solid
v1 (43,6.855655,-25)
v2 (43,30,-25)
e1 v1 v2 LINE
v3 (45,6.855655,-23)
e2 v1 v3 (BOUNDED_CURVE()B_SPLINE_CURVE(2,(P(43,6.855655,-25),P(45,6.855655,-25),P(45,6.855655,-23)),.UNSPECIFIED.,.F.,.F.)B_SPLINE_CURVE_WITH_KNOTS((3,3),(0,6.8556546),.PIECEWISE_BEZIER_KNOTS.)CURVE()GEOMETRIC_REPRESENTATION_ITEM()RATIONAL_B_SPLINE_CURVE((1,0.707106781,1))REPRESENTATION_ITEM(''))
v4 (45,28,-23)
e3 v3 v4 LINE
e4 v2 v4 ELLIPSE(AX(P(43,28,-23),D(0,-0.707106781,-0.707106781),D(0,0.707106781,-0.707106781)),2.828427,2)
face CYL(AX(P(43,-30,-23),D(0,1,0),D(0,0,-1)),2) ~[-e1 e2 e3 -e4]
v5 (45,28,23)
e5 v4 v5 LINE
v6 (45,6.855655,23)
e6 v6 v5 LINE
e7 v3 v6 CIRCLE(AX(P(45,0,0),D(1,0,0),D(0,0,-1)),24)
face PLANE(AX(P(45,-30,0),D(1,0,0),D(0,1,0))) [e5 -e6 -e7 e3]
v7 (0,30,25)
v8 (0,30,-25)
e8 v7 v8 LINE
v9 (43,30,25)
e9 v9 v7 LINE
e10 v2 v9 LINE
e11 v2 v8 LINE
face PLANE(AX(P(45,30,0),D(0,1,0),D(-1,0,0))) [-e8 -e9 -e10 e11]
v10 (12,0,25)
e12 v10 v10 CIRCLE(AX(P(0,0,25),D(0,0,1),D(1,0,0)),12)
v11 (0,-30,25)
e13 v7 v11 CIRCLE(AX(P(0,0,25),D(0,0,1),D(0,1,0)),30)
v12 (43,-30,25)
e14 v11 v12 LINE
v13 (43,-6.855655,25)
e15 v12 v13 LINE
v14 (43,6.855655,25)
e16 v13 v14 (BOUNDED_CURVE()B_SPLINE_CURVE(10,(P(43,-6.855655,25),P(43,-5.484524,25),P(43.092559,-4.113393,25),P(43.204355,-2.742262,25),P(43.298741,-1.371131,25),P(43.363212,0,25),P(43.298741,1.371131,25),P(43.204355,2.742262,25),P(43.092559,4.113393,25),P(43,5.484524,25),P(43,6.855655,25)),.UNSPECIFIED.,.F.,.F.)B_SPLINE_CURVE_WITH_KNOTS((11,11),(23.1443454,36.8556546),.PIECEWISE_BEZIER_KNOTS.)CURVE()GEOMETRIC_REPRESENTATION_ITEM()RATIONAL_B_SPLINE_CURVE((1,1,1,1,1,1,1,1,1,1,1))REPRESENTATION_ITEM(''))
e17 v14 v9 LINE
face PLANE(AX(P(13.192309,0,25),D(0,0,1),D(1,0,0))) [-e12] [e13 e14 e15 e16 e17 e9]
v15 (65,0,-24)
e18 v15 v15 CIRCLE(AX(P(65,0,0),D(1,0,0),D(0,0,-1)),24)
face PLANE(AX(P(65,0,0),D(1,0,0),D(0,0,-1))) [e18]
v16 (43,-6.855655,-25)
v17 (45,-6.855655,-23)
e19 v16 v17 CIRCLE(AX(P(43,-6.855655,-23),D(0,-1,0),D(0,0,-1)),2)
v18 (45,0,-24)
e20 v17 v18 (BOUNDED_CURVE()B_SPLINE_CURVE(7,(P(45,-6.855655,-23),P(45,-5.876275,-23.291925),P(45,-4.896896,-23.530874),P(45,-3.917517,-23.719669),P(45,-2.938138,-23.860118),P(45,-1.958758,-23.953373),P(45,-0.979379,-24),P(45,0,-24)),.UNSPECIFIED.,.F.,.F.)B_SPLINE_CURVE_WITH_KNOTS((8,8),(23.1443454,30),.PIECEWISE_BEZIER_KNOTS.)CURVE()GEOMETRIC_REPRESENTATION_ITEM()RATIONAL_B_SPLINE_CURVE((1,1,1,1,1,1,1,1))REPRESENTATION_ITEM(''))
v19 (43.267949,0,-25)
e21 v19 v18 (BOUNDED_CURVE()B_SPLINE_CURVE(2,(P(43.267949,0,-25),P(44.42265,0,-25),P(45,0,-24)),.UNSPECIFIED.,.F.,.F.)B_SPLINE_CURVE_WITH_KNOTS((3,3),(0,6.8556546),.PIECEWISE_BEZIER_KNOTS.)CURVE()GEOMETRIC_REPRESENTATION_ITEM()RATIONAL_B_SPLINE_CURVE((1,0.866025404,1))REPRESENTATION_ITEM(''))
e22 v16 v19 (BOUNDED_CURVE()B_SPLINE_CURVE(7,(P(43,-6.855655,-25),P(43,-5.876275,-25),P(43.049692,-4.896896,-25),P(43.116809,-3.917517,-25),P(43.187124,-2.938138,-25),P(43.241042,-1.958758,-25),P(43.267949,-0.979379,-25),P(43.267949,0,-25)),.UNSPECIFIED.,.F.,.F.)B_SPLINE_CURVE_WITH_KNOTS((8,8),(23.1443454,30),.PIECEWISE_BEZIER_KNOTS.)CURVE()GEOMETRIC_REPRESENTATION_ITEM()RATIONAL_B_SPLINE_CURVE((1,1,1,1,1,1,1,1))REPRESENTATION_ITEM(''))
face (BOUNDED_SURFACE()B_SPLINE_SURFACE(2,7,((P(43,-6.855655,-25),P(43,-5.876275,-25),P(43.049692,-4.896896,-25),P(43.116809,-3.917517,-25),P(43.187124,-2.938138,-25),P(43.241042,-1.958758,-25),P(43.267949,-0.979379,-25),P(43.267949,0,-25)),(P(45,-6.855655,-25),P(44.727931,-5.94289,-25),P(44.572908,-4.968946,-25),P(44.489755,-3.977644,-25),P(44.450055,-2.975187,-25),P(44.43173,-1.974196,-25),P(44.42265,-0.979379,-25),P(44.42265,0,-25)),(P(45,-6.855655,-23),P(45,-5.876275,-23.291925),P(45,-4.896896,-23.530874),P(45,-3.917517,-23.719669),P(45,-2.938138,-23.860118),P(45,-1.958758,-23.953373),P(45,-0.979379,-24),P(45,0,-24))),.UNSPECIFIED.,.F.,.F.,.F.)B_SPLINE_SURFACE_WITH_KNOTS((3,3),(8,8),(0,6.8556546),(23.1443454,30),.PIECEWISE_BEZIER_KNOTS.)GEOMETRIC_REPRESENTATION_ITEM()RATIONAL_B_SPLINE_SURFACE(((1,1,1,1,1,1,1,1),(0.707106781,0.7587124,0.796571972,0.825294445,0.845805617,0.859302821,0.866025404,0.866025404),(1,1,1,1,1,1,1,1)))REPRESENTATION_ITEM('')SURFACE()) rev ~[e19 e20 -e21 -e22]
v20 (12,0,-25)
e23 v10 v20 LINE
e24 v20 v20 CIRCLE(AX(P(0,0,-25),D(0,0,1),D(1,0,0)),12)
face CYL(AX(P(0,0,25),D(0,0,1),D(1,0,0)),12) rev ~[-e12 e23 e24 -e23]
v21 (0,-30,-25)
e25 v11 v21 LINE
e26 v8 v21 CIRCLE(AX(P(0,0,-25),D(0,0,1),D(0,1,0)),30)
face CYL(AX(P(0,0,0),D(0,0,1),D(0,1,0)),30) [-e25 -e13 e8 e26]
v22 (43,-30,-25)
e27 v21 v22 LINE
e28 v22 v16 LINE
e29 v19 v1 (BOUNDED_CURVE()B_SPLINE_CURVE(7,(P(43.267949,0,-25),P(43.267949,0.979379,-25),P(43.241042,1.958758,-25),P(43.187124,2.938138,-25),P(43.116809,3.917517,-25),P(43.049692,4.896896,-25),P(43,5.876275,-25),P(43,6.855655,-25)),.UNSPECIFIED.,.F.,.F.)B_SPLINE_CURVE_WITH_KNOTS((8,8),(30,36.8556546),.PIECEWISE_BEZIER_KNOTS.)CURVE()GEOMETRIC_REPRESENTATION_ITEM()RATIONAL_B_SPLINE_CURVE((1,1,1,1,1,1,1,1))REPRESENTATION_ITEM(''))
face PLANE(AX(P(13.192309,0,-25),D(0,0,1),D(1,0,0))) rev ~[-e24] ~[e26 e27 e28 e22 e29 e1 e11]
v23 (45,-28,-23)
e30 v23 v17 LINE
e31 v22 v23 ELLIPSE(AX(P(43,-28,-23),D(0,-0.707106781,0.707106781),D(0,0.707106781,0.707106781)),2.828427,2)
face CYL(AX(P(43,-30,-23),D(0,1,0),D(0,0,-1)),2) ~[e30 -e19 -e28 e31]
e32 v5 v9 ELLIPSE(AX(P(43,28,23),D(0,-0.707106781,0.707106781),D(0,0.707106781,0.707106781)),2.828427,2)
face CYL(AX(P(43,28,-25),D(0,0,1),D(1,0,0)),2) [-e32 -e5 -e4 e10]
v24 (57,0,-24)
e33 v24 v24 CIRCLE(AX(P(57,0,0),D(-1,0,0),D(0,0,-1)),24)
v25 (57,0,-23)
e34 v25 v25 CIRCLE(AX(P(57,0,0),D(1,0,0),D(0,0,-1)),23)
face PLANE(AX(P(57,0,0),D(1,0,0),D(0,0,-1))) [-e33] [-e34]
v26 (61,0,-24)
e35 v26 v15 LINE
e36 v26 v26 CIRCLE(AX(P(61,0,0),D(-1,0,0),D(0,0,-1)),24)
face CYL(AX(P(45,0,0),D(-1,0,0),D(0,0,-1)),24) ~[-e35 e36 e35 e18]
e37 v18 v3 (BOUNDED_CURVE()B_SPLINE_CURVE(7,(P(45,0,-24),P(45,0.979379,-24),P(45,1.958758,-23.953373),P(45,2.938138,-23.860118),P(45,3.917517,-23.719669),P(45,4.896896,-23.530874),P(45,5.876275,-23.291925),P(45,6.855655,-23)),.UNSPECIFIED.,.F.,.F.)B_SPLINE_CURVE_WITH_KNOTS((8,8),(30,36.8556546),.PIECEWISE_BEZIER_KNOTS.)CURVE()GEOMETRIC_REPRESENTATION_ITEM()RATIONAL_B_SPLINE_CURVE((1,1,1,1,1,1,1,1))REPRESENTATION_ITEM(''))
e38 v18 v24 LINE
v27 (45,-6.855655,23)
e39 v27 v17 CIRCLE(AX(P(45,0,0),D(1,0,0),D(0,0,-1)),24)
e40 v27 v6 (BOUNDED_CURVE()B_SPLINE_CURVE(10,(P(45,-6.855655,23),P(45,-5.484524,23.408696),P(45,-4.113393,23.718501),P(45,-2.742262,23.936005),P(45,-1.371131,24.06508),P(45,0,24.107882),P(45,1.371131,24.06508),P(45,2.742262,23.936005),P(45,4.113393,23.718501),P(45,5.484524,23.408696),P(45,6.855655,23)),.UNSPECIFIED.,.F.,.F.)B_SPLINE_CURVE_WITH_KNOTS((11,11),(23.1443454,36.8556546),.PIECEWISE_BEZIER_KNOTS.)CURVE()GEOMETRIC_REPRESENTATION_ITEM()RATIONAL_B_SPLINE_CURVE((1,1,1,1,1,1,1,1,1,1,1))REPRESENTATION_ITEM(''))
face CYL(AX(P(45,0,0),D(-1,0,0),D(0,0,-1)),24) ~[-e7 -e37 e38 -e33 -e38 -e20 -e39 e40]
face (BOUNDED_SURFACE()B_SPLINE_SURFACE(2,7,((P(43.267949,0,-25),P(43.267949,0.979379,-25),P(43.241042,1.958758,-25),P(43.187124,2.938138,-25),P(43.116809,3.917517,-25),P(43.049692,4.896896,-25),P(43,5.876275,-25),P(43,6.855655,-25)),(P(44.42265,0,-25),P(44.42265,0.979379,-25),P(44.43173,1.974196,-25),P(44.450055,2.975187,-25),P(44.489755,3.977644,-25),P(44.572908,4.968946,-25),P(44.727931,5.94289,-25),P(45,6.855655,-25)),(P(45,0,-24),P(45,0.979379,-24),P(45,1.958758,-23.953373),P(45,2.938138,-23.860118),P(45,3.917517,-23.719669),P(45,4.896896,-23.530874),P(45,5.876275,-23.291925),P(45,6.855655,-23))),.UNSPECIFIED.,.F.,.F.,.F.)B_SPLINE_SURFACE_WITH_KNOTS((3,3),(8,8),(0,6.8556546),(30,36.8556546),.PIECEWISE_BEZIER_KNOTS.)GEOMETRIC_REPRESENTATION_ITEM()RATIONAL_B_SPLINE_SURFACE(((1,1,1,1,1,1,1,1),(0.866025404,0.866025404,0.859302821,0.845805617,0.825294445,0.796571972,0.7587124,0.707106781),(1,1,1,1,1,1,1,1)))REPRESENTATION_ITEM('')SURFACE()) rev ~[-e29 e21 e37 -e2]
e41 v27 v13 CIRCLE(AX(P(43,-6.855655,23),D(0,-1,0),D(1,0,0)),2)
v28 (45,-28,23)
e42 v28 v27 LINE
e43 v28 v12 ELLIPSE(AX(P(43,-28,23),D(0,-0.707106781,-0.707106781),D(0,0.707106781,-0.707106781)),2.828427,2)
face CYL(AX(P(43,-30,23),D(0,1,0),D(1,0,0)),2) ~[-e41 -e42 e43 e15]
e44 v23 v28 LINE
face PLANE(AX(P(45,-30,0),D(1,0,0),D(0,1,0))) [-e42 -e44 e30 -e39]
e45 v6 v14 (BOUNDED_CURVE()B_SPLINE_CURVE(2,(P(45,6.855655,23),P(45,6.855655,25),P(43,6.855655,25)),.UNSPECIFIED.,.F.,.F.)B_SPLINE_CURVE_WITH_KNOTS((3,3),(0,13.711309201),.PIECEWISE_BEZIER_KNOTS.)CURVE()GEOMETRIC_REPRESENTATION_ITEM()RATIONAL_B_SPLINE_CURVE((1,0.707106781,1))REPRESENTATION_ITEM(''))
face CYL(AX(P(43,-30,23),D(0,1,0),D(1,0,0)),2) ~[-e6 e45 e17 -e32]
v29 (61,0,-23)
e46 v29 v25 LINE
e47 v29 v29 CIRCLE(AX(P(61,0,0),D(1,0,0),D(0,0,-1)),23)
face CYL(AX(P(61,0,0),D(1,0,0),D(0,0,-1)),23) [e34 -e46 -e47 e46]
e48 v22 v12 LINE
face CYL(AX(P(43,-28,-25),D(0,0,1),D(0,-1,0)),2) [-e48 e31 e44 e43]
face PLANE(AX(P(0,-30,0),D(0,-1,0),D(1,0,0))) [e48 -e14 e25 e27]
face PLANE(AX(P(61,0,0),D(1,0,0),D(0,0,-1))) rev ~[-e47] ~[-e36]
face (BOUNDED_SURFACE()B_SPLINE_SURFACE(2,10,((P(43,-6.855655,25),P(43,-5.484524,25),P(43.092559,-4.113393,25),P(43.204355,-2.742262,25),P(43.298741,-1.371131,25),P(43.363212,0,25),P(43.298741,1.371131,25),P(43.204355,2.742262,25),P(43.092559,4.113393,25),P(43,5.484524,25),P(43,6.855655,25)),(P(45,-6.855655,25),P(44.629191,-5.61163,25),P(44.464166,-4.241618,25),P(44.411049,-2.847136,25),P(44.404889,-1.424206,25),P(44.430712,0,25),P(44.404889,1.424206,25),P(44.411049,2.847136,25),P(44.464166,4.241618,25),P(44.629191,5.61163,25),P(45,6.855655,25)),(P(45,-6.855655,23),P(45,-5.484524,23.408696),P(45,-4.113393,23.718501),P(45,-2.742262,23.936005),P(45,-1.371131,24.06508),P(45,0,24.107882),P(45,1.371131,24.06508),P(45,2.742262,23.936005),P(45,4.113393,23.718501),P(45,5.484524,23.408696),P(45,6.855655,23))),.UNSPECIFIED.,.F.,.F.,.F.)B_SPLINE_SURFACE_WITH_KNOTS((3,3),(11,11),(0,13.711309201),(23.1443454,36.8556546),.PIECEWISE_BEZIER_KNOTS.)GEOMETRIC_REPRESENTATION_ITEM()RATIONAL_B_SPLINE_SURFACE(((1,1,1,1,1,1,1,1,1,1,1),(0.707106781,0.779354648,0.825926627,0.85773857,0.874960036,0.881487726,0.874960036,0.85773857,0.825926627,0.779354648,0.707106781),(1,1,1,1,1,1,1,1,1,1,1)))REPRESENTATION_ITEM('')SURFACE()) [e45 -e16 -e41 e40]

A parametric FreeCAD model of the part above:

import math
import FreeCAD as App
import Part
import Sketcher
Q = App.Units.Quantity


def edges_at(feature, points):
    """Names of the edges that pass closest to the given points."""
    edges = feature.Shape.Edges
    near = lambda p: min(range(len(edges)), key=lambda i: edges[i].distToShape(Part.Vertex(*p))[0])
    return sorted({f"Edge{near(p) + 1}" for p in points})

doc = App.newDocument("Part")
body = doc.addObject("PartDesign::Body", "Body")

sketch1 = body.newObject("Sketcher::SketchObject", "Sketch")
sketch1.AttachmentSupport = (doc.getObject("XY_Plane"), [""])
sketch1.MapMode = "FlatFace"
sketch1.addGeometry(Part.LineSegment(App.Vector(0, -30, 0), App.Vector(45, -30, 0)), False)
sketch1.addGeometry(Part.LineSegment(App.Vector(45, -30, 0), App.Vector(45, 30, 0)), False)
sketch1.addGeometry(Part.LineSegment(App.Vector(45, 30, 0), App.Vector(0, 30, 0)), False)
sketch1.addGeometry(Part.ArcOfCircle(Part.Circle(App.Vector(0, 0, 0), App.Vector(0, 0, 1), 30), math.radians(90), math.radians(270)), False)
sketch1.addConstraint(Sketcher.Constraint("Coincident", 0, 2, 1, 1))
sketch1.addConstraint(Sketcher.Constraint("Coincident", 1, 2, 2, 1))
sketch1.addConstraint(Sketcher.Constraint("Tangent", 2, 2, 3, 1))
sketch1.addConstraint(Sketcher.Constraint("Tangent", 3, 2, 0, 1))
sketch1.addConstraint(Sketcher.Constraint("Horizontal", 0))
sketch1.addConstraint(Sketcher.Constraint("Vertical", 1))
sketch1.addConstraint(Sketcher.Constraint("Horizontal", 2))
sketch1.addConstraint(Sketcher.Constraint("Coincident", 3, 3, -1, 1))
sketch1.addConstraint(Sketcher.Constraint("Radius", 3, Q("30 mm")))
sketch1.addConstraint(Sketcher.Constraint("DistanceX", 0, 1, 0, 2, Q("45 mm")))
pad1 = body.newObject("PartDesign::Pad", "Pad")
pad1.Profile = sketch1
pad1.Length = 50
pad1.Midplane = True

sketch2 = body.newObject("Sketcher::SketchObject", "Sketch001")
sketch2.AttachmentSupport = (doc.getObject("XY_Plane"), [""])
sketch2.MapMode = "FlatFace"
sketch2.AttachmentOffset = App.Placement(App.Vector(0, 0, 25), App.Rotation())
sketch2.addGeometry(Part.Circle(App.Vector(0, 0, 0), App.Vector(0, 0, 1), 12), False)
sketch2.addConstraint(Sketcher.Constraint("Coincident", 0, 3, -1, 1))
sketch2.addConstraint(Sketcher.Constraint("Diameter", 0, Q("24 mm")))
pocket1 = body.newObject("PartDesign::Pocket", "Pocket")
pocket1.Profile = sketch2
pocket1.Type = "ThroughAll"

sketch3 = body.newObject("Sketcher::SketchObject", "Sketch002")
sketch3.AttachmentSupport = (doc.getObject("YZ_Plane"), [""])
sketch3.MapMode = "FlatFace"
sketch3.AttachmentOffset = App.Placement(App.Vector(0, 0, 45), App.Rotation())
sketch3.addGeometry(Part.Circle(App.Vector(0, 0, 0), App.Vector(0, 0, 1), 24), False)
sketch3.addConstraint(Sketcher.Constraint("Coincident", 0, 3, -1, 1))
sketch3.addConstraint(Sketcher.Constraint("Diameter", 0, Q("48 mm")))
pad2 = body.newObject("PartDesign::Pad", "Pad001")
pad2.Profile = sketch3
pad2.Length = 20

sketch4 = body.newObject("Sketcher::SketchObject", "Sketch003")
sketch4.AttachmentSupport = (doc.getObject("YZ_Plane"), [""])
sketch4.MapMode = "FlatFace"
sketch4.AttachmentOffset = App.Placement(App.Vector(0, 0, 61), App.Rotation())
sketch4.addGeometry(Part.Circle(App.Vector(0, 0, 0), App.Vector(0, 0, 1), 24), False)
sketch4.addGeometry(Part.Circle(App.Vector(0, 0, 0), App.Vector(0, 0, 1), 23), False)
sketch4.addConstraint(Sketcher.Constraint("Coincident", 0, 3, -1, 1))
sketch4.addConstraint(Sketcher.Constraint("Coincident", 1, 3, -1, 1))
sketch4.addConstraint(Sketcher.Constraint("Diameter", 0, Q("49 mm")))
sketch4.addConstraint(Sketcher.Constraint("Diameter", 1, Q("46 mm")))
pocket2 = body.newObject("PartDesign::Pocket", "Pocket001")
pocket2.Profile = sketch4
pocket2.Length = 4
doc.recompute()

fillet = body.newObject("PartDesign::Fillet", "Fillet")
fillet.Base = (pocket2, edges_at(pocket2, [
    (45, 0, 25),
    (45, 0, -25),
    (45, 30, 0),
    (45, -30, 0),
]))
fillet.Radius = 2

doc.recompute()
